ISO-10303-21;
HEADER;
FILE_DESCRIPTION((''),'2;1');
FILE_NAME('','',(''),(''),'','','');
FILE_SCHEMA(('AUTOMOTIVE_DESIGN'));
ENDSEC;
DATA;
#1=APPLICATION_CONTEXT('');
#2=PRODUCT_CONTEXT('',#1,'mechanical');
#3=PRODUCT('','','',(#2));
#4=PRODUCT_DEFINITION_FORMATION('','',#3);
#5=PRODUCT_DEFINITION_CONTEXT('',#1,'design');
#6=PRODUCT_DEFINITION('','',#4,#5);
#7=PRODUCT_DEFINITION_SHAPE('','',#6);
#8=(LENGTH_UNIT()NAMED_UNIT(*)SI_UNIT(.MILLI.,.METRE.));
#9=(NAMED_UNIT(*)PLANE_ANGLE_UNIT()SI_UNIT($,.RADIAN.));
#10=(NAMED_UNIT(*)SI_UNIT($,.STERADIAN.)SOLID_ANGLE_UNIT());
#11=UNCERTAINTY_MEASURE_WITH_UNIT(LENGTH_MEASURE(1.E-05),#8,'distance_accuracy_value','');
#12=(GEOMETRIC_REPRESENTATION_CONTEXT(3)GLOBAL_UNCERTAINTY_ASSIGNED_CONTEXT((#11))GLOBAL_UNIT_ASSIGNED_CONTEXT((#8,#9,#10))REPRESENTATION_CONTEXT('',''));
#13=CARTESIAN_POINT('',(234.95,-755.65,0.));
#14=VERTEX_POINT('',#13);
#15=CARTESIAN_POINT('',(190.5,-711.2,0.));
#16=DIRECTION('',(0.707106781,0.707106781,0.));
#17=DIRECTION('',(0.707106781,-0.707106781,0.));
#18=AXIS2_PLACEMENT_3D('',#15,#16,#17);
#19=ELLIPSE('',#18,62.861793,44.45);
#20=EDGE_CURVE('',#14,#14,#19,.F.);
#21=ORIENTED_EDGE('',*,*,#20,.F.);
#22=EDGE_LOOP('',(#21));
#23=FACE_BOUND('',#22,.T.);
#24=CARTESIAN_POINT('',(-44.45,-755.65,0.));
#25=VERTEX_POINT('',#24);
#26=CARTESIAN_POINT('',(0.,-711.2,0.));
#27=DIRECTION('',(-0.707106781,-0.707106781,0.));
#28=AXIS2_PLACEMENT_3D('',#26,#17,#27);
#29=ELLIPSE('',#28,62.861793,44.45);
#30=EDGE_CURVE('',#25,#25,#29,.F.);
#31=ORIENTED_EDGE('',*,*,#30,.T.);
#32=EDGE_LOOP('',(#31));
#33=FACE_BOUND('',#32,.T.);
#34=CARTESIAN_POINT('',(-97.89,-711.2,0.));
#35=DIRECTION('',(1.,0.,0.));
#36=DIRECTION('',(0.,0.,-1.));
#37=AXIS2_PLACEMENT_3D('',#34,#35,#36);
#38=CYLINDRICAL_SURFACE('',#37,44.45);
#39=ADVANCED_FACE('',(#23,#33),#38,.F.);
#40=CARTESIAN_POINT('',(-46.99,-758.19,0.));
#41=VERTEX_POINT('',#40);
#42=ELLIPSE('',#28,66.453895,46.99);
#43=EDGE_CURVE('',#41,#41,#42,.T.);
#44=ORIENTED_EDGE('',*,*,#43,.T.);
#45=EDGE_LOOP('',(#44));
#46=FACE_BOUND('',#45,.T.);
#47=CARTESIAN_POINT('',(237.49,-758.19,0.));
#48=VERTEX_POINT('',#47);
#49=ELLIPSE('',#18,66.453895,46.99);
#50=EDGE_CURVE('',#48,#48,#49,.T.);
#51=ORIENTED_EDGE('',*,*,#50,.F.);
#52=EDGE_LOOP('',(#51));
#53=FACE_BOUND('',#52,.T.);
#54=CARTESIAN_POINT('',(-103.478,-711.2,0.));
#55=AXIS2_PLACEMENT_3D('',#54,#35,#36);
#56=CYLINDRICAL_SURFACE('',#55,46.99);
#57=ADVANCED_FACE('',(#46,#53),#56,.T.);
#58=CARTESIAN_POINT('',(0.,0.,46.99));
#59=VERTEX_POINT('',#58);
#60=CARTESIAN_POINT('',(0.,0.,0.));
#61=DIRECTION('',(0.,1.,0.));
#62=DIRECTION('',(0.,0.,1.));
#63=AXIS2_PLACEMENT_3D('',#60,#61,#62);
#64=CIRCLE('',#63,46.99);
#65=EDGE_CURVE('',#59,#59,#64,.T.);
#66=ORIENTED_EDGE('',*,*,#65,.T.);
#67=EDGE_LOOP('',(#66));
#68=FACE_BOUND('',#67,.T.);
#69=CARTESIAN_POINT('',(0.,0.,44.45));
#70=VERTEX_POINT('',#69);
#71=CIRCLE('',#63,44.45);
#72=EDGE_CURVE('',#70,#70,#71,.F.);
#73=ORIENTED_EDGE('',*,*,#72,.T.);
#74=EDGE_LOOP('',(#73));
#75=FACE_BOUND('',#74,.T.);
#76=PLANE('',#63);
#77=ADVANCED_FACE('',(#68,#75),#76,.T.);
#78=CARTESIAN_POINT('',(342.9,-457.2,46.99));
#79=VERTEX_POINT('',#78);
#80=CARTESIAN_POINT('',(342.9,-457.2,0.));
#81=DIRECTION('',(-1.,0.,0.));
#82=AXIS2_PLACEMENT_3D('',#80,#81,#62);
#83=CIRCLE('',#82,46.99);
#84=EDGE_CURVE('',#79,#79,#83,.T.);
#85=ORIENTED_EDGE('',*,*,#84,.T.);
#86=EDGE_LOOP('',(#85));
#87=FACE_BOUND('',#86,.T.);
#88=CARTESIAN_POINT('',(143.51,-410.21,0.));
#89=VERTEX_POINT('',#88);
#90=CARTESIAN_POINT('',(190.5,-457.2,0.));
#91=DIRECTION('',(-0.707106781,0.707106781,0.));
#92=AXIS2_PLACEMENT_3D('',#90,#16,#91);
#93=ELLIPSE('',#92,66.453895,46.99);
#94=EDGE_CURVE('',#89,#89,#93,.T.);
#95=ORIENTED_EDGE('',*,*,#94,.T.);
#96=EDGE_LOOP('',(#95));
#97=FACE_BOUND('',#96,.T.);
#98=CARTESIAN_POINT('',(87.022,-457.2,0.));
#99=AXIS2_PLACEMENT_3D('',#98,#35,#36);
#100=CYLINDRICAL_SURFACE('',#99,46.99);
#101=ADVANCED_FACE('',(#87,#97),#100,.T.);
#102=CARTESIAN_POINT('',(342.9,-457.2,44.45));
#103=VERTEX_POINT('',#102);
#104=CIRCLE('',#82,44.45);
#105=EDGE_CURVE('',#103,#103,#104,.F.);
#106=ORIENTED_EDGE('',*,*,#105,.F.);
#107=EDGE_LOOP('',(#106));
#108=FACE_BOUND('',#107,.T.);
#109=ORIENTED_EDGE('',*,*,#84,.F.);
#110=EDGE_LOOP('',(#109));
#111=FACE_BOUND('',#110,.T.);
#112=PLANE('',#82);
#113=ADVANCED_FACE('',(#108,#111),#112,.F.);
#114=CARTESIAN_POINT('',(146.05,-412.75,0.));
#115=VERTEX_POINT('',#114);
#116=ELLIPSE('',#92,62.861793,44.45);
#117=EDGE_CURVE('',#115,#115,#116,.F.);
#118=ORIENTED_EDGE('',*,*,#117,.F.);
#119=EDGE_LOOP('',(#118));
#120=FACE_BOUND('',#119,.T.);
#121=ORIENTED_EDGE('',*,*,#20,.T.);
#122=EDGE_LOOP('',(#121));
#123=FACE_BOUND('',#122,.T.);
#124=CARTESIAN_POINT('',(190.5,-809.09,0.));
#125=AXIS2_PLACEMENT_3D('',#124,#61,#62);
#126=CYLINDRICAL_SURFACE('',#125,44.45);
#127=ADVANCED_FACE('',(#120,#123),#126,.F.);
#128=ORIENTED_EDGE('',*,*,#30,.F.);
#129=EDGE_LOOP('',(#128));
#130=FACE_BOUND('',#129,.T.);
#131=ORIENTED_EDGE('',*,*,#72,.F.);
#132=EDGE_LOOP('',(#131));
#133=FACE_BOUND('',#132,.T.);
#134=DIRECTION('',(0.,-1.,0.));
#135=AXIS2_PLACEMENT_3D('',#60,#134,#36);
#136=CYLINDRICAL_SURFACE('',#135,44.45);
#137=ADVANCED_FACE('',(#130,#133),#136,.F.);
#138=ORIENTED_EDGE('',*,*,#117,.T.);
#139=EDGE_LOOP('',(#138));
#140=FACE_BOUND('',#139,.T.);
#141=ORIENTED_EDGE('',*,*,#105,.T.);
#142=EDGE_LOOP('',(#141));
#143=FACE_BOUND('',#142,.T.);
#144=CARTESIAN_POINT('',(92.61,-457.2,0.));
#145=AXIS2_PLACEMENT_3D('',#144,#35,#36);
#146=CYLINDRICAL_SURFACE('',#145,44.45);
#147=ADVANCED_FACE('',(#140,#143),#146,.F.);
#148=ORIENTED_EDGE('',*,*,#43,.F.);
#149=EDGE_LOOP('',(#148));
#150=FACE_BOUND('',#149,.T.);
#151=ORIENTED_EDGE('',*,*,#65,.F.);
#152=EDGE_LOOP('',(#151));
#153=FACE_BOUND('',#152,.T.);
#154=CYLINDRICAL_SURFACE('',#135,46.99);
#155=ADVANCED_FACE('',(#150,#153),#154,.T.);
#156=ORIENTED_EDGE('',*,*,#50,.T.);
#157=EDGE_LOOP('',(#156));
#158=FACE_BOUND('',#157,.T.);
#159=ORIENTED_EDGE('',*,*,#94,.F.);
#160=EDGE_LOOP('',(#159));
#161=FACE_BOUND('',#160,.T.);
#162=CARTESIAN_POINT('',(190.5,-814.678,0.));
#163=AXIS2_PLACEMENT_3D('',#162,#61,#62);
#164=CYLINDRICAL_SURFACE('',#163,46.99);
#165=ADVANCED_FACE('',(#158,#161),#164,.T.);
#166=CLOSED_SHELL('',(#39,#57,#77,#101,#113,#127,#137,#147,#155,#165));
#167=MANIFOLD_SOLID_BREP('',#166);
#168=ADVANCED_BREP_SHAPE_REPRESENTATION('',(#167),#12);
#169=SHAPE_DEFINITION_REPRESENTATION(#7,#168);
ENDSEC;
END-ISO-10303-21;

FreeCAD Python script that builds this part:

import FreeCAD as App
import Part
import Sketcher
Q = App.Units.Quantity

doc = App.newDocument("Part")
params = doc.addObject("Spreadsheet::Sheet", "Params")
for row, (alias, value) in enumerate([
    ("sketch1_diameter", "3.7 in"),
    ("sketch1_diameter2", "3.5 in"),
    ("sketch2_width", "6 in"),
    ("sketch2_height", "28 in"),
    ("sketch2_height2", "10 in"),
    ("sketch2_width2", "7.5 in"),
], start=1):
    params.set(f"A{row}", alias)
    params.set(f"B{row}", "=" + value)
    params.setAlias(f"B{row}", alias)

body = doc.addObject("PartDesign::Body", "Body")

# Sketch on XZ plane
sketch1 = body.newObject("Sketcher::SketchObject", "Sketch")
sketch1.AttachmentSupport = (doc.getObject("XZ_Plane"), [""])
sketch1.MapMode = "FlatFace"
sketch1.addGeometry(Part.Circle(App.Vector(0, 0, 0), App.Vector(0, 0, 1), 47), False)
sketch1.addGeometry(Part.Circle(App.Vector(0, 0, 0), App.Vector(0, 0, 1), 44), False)
sketch1.addConstraint(Sketcher.Constraint("Coincident", 0, 3, -1, 1))
sketch1.addConstraint(Sketcher.Constraint("Coincident", 1, 3, -1, 1))
sketch1.addConstraint(Sketcher.Constraint("Diameter", 0, Q("3.7 in")))
sketch1.addConstraint(Sketcher.Constraint("Diameter", 1, Q("3.5 in")))
sketch1.setExpression("Constraints[2]", "Params.sketch1_diameter")
sketch1.setExpression("Constraints[3]", "Params.sketch1_diameter2")

# Sketch on XY plane
sketch2 = body.newObject("Sketcher::SketchObject", "Sketch001")
sketch2.AttachmentSupport = (doc.getObject("XY_Plane"), [""])
sketch2.MapMode = "FlatFace"
sketch2.addGeometry(Part.LineSegment(App.Vector(0, 0, 0), App.Vector(0, -711, 0)), False)
sketch2.addGeometry(Part.LineSegment(App.Vector(0, -711, 0), App.Vector(190, -711, 0)), False)
sketch2.addGeometry(Part.LineSegment(App.Vector(190, -711, 0), App.Vector(190, -457, 0)), False)
sketch2.addGeometry(Part.LineSegment(App.Vector(190, -457, 0), App.Vector(343, -457, 0)), False)
sketch2.addConstraint(Sketcher.Constraint("Coincident", 0, 2, 1, 1))
sketch2.addConstraint(Sketcher.Constraint("Coincident", 1, 2, 2, 1))
sketch2.addConstraint(Sketcher.Constraint("Coincident", 2, 2, 3, 1))
sketch2.addConstraint(Sketcher.Constraint("Vertical", 0))
sketch2.addConstraint(Sketcher.Constraint("Horizontal", 1))
sketch2.addConstraint(Sketcher.Constraint("Vertical", 2))
sketch2.addConstraint(Sketcher.Constraint("Horizontal", 3))
sketch2.addConstraint(Sketcher.Constraint("Coincident", 0, 1, -1, 1))
sketch2.addConstraint(Sketcher.Constraint("DistanceX", 3, 1, 3, 2, Q("6 in")))
sketch2.addConstraint(Sketcher.Constraint("DistanceY", 0, 2, 0, 1, Q("28 in")))
sketch2.addConstraint(Sketcher.Constraint("DistanceY", 2, 1, 2, 2, Q("10 in")))
sketch2.addConstraint(Sketcher.Constraint("DistanceX", 1, 1, 1, 2, Q("7.5 in")))
sketch2.setExpression("Constraints[8]", "Params.sketch2_width")
sketch2.setExpression("Constraints[9]", "Params.sketch2_height")
sketch2.setExpression("Constraints[10]", "Params.sketch2_height2")
sketch2.setExpression("Constraints[11]", "Params.sketch2_width2")
doc.recompute()

additivepipe = body.newObject("PartDesign::AdditivePipe", "AdditivePipe")
additivepipe.Profile = sketch1
additivepipe.Spine = (sketch2, ["Edge1", "Edge2", "Edge3", "Edge4"])
additivepipe.Transition = "Right corner"

doc.recompute()
